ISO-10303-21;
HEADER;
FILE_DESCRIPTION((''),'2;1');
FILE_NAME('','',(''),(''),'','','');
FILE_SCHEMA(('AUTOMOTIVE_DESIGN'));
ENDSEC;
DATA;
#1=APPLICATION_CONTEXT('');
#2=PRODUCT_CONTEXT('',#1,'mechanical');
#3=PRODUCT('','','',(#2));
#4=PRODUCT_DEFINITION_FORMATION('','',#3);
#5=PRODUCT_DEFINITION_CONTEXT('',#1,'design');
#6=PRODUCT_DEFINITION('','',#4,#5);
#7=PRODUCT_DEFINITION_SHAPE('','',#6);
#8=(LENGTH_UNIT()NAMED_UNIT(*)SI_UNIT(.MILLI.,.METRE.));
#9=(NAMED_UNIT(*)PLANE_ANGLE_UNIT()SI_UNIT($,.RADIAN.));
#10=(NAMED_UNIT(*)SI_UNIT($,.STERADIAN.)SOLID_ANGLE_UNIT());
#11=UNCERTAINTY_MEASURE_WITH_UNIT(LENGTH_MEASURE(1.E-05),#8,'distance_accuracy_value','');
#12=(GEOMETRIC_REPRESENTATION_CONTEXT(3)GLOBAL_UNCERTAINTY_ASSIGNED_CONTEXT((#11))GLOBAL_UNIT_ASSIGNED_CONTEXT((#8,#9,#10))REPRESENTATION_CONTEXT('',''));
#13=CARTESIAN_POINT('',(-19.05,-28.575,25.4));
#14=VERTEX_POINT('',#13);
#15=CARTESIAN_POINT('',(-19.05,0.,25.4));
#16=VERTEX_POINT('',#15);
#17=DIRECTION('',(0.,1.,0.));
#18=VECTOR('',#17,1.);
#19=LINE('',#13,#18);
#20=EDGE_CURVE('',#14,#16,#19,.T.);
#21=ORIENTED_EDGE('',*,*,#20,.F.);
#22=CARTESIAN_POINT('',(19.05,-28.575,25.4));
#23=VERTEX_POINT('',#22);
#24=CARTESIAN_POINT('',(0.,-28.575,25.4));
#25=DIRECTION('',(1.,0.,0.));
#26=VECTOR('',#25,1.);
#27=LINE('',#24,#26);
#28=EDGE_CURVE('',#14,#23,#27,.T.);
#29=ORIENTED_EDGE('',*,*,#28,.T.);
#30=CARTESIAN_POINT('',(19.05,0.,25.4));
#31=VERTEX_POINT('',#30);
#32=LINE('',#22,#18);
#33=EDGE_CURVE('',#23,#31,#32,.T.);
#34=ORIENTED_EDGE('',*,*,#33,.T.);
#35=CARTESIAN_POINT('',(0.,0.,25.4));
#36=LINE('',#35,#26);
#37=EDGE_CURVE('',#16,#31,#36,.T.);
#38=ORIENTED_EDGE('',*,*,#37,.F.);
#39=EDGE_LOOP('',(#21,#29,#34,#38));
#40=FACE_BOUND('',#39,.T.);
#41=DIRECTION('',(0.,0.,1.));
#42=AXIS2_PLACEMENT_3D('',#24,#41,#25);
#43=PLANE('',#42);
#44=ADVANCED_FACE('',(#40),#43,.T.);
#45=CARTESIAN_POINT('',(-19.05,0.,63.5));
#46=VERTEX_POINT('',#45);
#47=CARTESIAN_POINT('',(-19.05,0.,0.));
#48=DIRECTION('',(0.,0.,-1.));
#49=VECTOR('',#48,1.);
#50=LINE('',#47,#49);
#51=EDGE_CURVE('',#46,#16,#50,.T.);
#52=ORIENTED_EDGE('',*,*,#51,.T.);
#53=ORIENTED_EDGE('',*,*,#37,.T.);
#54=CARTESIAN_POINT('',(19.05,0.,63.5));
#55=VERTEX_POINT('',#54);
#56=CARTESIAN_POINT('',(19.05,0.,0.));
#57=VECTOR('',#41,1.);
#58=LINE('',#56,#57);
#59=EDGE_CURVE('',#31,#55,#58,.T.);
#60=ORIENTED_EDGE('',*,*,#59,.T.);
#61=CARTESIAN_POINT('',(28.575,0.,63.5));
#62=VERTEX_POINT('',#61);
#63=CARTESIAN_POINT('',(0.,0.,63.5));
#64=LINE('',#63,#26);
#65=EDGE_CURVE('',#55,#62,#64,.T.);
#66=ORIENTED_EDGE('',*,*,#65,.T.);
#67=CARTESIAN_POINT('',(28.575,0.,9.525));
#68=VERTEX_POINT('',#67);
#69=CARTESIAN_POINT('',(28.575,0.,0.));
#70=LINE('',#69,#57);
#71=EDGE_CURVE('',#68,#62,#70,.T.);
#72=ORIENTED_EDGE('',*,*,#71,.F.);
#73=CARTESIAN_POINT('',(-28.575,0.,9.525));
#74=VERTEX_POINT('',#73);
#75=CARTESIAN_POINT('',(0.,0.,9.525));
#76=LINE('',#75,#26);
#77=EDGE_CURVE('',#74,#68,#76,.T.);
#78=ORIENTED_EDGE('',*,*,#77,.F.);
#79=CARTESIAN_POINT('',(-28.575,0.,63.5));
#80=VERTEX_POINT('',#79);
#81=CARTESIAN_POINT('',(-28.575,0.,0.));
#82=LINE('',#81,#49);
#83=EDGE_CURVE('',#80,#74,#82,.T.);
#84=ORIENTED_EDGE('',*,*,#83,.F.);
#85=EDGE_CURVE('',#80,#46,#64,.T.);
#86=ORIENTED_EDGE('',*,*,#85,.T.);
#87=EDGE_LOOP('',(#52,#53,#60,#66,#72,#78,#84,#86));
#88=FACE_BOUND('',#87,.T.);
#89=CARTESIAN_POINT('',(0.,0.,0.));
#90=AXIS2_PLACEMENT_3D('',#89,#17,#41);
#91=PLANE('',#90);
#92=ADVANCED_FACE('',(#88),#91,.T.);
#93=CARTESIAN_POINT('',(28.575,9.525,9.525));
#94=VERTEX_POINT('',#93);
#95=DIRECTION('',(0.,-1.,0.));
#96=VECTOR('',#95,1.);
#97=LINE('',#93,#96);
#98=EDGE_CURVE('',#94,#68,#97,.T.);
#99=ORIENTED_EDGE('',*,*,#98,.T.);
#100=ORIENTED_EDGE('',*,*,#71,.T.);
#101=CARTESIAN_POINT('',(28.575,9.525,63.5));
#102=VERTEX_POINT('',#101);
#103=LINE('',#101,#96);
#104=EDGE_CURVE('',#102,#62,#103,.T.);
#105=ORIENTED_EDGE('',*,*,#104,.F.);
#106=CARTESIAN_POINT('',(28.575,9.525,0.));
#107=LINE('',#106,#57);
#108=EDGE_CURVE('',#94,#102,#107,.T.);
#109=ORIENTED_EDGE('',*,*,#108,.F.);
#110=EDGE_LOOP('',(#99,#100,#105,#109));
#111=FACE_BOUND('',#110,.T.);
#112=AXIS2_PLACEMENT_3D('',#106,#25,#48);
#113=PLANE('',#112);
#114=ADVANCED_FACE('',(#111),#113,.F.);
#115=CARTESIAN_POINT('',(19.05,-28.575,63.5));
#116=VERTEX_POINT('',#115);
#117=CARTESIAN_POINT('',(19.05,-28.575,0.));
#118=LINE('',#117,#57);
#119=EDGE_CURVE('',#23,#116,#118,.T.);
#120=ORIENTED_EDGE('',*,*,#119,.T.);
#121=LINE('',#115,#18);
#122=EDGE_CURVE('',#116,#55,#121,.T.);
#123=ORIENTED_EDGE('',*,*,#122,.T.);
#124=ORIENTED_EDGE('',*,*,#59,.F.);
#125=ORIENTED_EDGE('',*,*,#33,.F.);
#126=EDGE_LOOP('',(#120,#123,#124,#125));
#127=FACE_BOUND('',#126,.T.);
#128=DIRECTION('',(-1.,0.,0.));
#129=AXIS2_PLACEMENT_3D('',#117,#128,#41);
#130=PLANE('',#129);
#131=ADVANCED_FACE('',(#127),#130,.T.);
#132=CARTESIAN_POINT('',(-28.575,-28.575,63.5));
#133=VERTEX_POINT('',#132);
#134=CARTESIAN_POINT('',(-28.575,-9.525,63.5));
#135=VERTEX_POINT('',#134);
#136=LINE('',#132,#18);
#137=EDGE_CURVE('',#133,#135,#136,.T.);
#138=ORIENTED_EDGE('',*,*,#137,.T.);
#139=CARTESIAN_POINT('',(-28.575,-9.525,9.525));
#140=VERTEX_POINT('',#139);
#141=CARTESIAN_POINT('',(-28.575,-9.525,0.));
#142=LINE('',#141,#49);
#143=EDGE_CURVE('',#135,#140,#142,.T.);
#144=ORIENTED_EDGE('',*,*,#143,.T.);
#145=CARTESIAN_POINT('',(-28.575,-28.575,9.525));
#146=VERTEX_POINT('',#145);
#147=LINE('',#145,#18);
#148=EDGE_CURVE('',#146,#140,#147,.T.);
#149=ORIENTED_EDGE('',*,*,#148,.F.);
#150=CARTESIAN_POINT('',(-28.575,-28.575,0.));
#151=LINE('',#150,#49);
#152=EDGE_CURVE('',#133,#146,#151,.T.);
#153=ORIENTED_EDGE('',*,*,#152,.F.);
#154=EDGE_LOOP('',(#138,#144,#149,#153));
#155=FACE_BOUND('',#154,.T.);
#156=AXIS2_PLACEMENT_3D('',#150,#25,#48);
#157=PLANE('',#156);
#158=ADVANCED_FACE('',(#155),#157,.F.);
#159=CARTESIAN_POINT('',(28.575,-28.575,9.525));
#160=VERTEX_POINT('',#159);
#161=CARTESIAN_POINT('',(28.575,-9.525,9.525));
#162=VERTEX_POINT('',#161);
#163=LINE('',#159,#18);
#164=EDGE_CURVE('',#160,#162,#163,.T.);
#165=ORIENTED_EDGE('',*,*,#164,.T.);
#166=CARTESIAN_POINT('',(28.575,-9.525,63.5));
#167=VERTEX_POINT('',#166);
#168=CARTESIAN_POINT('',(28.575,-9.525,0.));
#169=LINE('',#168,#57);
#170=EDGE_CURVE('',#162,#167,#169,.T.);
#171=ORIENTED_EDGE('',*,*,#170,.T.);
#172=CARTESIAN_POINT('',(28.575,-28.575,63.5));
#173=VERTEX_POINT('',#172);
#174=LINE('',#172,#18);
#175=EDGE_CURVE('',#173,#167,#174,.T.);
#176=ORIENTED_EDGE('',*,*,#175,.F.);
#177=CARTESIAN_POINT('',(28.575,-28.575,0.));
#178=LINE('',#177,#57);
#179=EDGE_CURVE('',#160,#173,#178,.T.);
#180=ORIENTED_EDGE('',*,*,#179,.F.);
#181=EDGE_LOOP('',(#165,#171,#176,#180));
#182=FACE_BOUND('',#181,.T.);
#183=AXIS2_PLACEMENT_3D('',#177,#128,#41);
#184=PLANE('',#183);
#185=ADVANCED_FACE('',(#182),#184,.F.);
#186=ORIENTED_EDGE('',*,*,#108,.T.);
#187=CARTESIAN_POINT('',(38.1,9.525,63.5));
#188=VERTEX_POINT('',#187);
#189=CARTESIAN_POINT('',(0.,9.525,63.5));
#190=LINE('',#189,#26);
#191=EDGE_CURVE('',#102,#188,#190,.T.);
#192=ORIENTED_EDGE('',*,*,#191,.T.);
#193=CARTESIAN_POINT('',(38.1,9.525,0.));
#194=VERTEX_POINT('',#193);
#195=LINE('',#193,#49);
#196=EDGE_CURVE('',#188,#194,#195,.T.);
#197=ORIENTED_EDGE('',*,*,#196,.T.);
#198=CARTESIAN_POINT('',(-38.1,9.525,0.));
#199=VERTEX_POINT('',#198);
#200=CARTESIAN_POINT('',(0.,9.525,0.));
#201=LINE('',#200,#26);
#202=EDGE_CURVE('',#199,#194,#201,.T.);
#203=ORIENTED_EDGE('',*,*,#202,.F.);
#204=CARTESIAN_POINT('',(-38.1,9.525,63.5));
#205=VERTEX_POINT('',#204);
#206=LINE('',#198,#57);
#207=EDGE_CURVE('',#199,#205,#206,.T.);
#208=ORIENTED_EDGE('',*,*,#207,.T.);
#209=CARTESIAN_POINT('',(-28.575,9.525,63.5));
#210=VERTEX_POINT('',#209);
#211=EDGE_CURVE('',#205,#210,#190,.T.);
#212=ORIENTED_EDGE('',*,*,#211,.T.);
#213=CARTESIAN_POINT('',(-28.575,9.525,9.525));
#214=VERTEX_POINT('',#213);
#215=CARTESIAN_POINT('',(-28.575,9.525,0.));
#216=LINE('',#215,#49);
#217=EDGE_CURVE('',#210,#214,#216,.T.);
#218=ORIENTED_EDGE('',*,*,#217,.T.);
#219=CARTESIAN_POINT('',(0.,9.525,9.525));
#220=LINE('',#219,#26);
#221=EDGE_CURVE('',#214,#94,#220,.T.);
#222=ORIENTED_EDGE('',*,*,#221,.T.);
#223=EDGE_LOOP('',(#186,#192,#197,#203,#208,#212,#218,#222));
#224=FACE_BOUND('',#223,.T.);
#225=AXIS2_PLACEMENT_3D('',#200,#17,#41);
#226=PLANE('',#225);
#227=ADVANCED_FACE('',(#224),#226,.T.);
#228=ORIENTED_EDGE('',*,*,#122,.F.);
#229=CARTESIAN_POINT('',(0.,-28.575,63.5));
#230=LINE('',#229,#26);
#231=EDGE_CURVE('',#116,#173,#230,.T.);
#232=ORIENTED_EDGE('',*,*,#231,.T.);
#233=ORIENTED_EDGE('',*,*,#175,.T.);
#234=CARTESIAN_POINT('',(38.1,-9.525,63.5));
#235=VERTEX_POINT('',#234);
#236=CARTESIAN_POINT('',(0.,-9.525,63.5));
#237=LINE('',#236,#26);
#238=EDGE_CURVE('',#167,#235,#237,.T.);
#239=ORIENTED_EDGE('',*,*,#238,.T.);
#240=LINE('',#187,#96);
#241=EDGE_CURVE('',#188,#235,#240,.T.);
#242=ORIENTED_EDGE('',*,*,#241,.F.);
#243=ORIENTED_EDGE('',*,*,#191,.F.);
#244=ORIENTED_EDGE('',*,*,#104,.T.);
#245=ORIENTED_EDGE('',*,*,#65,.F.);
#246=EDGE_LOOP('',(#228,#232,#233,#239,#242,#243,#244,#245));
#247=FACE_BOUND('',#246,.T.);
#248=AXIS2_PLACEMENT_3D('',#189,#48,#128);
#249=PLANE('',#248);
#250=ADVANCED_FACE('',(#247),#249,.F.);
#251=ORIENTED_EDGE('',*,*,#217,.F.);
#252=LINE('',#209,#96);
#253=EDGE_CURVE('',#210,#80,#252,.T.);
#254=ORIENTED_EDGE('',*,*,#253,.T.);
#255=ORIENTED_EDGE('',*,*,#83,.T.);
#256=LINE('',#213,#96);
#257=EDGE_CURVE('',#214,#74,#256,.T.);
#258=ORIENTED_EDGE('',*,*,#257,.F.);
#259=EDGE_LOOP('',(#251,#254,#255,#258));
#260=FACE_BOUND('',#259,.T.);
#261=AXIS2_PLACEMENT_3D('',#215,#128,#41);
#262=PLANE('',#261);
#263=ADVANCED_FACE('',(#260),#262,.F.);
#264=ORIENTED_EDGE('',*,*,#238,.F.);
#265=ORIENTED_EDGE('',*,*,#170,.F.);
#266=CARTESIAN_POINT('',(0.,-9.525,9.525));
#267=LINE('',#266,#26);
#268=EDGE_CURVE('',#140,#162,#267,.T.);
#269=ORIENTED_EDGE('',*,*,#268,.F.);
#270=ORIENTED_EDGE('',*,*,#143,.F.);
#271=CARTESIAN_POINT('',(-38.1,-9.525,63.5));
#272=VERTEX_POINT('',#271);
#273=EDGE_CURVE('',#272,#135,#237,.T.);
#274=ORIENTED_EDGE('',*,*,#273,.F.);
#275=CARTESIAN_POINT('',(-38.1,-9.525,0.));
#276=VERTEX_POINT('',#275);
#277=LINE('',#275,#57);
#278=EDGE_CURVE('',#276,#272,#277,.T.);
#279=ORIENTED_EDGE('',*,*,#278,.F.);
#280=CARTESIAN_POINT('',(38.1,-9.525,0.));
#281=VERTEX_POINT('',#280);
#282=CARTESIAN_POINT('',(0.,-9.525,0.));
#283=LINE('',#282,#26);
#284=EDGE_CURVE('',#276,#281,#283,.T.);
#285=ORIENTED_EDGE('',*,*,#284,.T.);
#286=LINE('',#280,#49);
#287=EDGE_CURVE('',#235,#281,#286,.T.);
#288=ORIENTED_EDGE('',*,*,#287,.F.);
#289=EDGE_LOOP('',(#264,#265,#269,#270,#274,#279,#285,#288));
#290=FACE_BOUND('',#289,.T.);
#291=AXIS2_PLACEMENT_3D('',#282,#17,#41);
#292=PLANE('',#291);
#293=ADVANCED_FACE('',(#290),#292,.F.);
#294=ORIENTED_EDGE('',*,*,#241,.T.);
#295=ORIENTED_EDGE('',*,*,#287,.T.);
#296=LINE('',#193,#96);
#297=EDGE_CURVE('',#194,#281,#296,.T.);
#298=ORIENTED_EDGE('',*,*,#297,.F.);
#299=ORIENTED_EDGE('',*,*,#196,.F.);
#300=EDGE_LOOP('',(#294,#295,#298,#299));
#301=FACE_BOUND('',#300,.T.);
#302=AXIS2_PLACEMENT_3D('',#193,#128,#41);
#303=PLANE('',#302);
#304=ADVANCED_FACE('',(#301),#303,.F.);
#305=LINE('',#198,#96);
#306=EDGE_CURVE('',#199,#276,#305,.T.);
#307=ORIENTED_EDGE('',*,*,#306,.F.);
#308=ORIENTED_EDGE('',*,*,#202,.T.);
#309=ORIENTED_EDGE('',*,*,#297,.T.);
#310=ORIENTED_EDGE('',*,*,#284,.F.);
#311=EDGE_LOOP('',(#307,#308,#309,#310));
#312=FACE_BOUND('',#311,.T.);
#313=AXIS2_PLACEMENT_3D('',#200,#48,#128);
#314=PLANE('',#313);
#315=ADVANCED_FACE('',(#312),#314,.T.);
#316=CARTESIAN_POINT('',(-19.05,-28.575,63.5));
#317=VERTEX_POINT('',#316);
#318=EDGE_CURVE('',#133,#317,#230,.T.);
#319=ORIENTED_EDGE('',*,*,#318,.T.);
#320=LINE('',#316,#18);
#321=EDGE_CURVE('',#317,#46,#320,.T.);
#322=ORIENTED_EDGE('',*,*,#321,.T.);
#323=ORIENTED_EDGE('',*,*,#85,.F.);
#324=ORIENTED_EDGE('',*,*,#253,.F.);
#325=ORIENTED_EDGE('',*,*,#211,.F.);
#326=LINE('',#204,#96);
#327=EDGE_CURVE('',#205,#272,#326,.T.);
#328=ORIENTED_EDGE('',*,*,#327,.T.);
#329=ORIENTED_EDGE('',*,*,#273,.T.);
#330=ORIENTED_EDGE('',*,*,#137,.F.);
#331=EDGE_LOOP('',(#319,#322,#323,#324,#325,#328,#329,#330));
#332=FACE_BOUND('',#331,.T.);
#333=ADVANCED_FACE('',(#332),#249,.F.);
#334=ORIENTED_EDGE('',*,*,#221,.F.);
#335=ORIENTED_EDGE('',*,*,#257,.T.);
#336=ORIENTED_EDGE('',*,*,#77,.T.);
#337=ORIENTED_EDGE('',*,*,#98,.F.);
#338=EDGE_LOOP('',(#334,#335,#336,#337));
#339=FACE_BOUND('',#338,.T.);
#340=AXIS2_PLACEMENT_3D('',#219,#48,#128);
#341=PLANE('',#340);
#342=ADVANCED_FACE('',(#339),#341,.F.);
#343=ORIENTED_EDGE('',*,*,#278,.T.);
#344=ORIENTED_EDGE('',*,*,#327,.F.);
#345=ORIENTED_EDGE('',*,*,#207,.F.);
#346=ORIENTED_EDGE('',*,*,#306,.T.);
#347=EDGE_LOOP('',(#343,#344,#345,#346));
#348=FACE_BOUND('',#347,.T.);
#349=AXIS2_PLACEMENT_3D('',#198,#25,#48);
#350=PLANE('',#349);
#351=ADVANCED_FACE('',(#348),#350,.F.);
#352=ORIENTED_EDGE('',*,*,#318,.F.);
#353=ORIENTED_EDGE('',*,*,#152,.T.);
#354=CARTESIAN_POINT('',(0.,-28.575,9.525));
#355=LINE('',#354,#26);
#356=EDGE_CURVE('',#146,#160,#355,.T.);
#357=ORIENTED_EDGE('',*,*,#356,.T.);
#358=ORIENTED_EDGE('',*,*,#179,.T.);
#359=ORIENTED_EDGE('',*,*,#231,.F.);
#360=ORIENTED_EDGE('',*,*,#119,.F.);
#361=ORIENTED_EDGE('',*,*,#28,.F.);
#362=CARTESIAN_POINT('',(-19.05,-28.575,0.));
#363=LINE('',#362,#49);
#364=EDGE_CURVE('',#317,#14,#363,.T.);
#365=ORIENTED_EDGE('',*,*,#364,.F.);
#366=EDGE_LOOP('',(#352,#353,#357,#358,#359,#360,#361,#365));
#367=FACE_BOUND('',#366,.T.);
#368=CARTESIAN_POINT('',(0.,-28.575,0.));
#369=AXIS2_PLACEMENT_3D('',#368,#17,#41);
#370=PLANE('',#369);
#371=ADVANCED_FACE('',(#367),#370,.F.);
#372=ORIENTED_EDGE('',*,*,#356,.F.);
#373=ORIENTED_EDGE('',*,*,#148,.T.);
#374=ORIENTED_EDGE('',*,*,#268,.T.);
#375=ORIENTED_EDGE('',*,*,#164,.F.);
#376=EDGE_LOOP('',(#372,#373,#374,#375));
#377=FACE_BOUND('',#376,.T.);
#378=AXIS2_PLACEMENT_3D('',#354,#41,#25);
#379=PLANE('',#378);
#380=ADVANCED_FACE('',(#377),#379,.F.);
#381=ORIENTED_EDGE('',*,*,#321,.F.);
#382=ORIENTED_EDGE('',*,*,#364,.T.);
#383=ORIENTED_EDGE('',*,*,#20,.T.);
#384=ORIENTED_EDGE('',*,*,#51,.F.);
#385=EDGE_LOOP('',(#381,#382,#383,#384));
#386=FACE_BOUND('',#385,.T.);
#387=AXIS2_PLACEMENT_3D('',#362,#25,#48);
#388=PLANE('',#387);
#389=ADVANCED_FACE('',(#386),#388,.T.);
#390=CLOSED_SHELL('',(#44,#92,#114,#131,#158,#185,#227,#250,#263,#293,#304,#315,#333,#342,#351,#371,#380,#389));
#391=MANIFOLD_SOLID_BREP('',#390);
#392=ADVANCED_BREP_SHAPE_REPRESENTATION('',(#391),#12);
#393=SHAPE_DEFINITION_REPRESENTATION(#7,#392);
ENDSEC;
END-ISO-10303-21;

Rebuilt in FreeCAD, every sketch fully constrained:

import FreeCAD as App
import Part
import Sketcher
from FreeCAD import Vector
Q = App.Units.Quantity


def add_polygon(sketch, points):
    """Adds a closed chain of lines whose ends are joined by coincident constraints."""
    first, n = sketch.GeometryCount, len(points)
    for a, b in zip(points, points[1:] + points[:1]):
        sketch.addGeometry(Part.LineSegment(App.Vector(*a, 0), App.Vector(*b, 0)), False)
    for i in range(n):
        sketch.addConstraint(Sketcher.Constraint("Coincident", first + i, 2, first + (i + 1) % n, 1))

doc = App.newDocument("Part")
body = doc.addObject("PartDesign::Body", "Body")

sketch1 = body.newObject("Sketcher::SketchObject", "Sketch")
sketch1.AttachmentSupport = (doc.getObject("XZ_Plane"), [""])
sketch1.MapMode = "FlatFace"
add_polygon(sketch1, [(38, 0), (-38, 0), (-38, 64), (-29, 64), (-29, 10), (29, 10), (29, 64), (38, 64)])
sketch1.addConstraint([
    Sketcher.Constraint("Horizontal", 0),
    Sketcher.Constraint("Vertical", 1),
    Sketcher.Constraint("Horizontal", 2),
    Sketcher.Constraint("Vertical", 3),
    Sketcher.Constraint("Horizontal", 4),
    Sketcher.Constraint("Vertical", 5),
    Sketcher.Constraint("Horizontal", 6),
    Sketcher.Constraint("Vertical", 7),
    Sketcher.Constraint("Symmetric", 0, 2, 7, 2, -1, 1),
    Sketcher.Constraint("Symmetric", 2, 2, 5, 2, -2),
    Sketcher.Constraint("DistanceX", 0, 2, 0, 1, Q("3 in")),
    Sketcher.Constraint("DistanceY", 1, 1, 1, 2, Q("2.5 in")),
    Sketcher.Constraint("DistanceX", 4, 1, 4, 2, Q("2.25 in")),
    Sketcher.Constraint("DistanceY", 3, 2, 3, 1, Q("2.125 in")),
])
pad1 = body.newObject("PartDesign::Pad", "Pad")
pad1.Profile = sketch1
pad1.Length = Q("0.75 in")
pad1.Midplane = True

sketch2 = body.newObject("Sketcher::SketchObject", "Sketch001")
sketch2.AttachmentSupport = (doc.getObject("XZ_Plane"), [""])
sketch2.MapMode = "FlatFace"
add_polygon(sketch2, [(-29, 10), (-29, 64), (-19, 64), (-19, 25), (19, 25), (19, 64), (29, 64), (29, 10)])
sketch2.addConstraint([
    Sketcher.Constraint("Vertical", 0),
    Sketcher.Constraint("Horizontal", 1),
    Sketcher.Constraint("Vertical", 2),
    Sketcher.Constraint("Horizontal", 3),
    Sketcher.Constraint("Vertical", 4),
    Sketcher.Constraint("Horizontal", 5),
    Sketcher.Constraint("Vertical", 6),
    Sketcher.Constraint("Horizontal", 7),
    Sketcher.Constraint("Symmetric", 1, 2, 4, 2, -2),
    Sketcher.Constraint("Equal", 1, 5),
    Sketcher.Constraint("Equal", 3, 2),
    Sketcher.Constraint("DistanceX", 3, 1, 3, 2, Q("1.5 in")),
    Sketcher.Constraint("DistanceY", -1, 1, 2, 2, Q("1 in")),
    Sketcher.Constraint("DistanceX", 7, 2, 7, 1, Q("2.25 in")),
    Sketcher.Constraint("DistanceY", 0, 1, 0, 2, Q("2.125 in")),
])
pad2 = body.newObject("PartDesign::Pad", "Pad001")
pad2.Profile = sketch2
pad2.Length = Q("1.125 in")

doc.recompute()
